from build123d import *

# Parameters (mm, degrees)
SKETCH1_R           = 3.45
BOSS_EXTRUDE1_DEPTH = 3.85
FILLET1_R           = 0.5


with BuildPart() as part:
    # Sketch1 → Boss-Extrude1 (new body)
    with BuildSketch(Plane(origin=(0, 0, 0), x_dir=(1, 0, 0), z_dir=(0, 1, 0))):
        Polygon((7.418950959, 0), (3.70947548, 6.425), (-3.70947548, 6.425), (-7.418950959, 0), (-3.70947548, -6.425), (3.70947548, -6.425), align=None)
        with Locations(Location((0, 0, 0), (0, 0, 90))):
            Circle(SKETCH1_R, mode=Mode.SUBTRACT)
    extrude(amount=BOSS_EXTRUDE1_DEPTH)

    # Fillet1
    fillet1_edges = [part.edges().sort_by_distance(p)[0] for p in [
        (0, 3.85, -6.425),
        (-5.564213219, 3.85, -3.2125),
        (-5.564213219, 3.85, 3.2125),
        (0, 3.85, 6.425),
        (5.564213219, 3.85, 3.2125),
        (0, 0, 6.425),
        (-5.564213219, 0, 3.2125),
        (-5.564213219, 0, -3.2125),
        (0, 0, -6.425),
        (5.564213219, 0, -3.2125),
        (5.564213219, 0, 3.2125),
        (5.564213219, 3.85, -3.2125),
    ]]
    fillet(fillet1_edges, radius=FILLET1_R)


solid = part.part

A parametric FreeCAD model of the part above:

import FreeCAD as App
import Part
import Sketcher
from FreeCAD import Vector
Q = App.Units.Quantity


def edges_at(feature, points):
    """Names of the edges that pass closest to the given points."""
    edges = feature.Shape.Edges
    near = lambda p: min(range(len(edges)), key=lambda i: edges[i].distToShape(Part.Vertex(*p))[0])
    return sorted({f"Edge{near(p) + 1}" for p in points})


def add_polygon(sketch, points):
    """Adds a closed chain of lines whose ends are joined by coincident constraints."""
    first, n = sketch.GeometryCount, len(points)
    for a, b in zip(points, points[1:] + points[:1]):
        sketch.addGeometry(Part.LineSegment(App.Vector(*a, 0), App.Vector(*b, 0)), False)
    for i in range(n):
        sketch.addConstraint(Sketcher.Constraint("Coincident", first + i, 2, first + (i + 1) % n, 1))

doc = App.newDocument("Part")
body = doc.addObject("PartDesign::Body", "Body")

sketch1 = doc.addObject("Sketcher::SketchObject", "Sketch")
body.addObject(sketch1)
sketch1.AttachmentSupport = (doc.XZ_Plane, [""])
sketch1.MapMode = "FlatFace"
add_polygon(sketch1, [(7.4, 0), (3.7, -6.4), (-3.7, -6.4), (-7.4, 0), (-3.7, 6.4), (3.7, 6.4)])
sketch1.addGeometry(Part.Circle(Vector(0, 0, 0), Vector(0, 0, 1), 3.5), False)
sketch1.addConstraint([
    Sketcher.Constraint("Horizontal", 1),
    Sketcher.Constraint("Horizontal", 4),
    Sketcher.Constraint("Coincident", 6, 3, -1, 1),
    Sketcher.Constraint("Symmetric", 0, 2, 3, 2, -1, 1),
    Sketcher.Constraint("Symmetric", 2, 2, 5, 2, -1, 1),
    Sketcher.Constraint("PointOnObject", 2, 2, -1),
    Sketcher.Constraint("Parallel", 2, 5),
    Sketcher.Constraint("Vertical", 1, 2, 3, 2),
    Sketcher.Constraint("Diameter", 6, Q("6.9 mm")),
    Sketcher.Constraint("Angle", 0, Q("-120 deg")),
    Sketcher.Constraint("DistanceY", 1, 2, 3, 2, Q("12.85 mm")),
    Sketcher.Constraint("DistanceX", 1, 2, 1, 1, Q("7.418951 mm")),
])
pad1 = doc.addObject("PartDesign::Pad", "Pad")
body.addObject(pad1)
pad1.Profile = sketch1
pad1.Length = 3.85
pad1.Reversed = True
doc.recompute()

fillet = doc.addObject("PartDesign::Fillet", "Fillet")
body.addObject(fillet)
fillet.Base = (pad1, edges_at(pad1, [
    (0, 3.85, -6.425),
    (-5.564, 3.85, -3.212),
    (-5.564, 3.85, 3.212),
    (0, 3.85, 6.425),
    (5.564, 3.85, 3.212),
    (0, 0, 6.425),
    (-5.564, 0, 3.212),
    (-5.564, 0, -3.212),
    (0, 0, -6.425),
    (5.564, 0, -3.212),
    (5.564, 0, 3.212),
    (5.564, 3.85, -3.212),
]))
fillet.Radius = 0.5

doc.recompute()
